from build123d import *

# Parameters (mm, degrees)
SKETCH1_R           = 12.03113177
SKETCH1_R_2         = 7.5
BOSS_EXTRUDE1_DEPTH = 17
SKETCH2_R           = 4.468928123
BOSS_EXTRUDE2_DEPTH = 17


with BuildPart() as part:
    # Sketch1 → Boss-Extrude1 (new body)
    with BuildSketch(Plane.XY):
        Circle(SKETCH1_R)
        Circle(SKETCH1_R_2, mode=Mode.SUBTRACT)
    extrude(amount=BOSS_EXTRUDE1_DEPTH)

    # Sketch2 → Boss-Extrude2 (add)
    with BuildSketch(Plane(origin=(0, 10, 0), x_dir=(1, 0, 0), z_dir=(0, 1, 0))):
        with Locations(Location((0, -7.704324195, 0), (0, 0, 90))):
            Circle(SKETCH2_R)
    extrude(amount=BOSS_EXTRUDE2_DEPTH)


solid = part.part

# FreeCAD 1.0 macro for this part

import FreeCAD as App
import Part
import Sketcher

V = App.Vector
Q = App.Units.Quantity

doc = App.newDocument("Part")
body = doc.addObject("PartDesign::Body", "Body")

# Sketch on XY plane
sketch1 = doc.addObject("Sketcher::SketchObject", "Sketch")
body.addObject(sketch1)
sketch1.AttachmentSupport = (doc.XY_Plane, [""])
sketch1.MapMode = "FlatFace"
sketch1.addGeometry([
    Part.Circle(V(0, 0, 0), V(0, 0, 1), 12),
    Part.Circle(V(0, 0, 0), V(0, 0, 1), 8),
], False)
sketch1.addConstraint([
    Sketcher.Constraint("Coincident", 0, 3, -1, 1),
    Sketcher.Constraint("Coincident", 1, 3, -1, 1),
    Sketcher.Constraint("Diameter", 1, Q("15 mm")),
    Sketcher.Constraint("Diameter", 0, Q("24.062264 mm")),
])
pad1 = doc.addObject("PartDesign::Pad", "Pad")
body.addObject(pad1)
pad1.Profile = sketch1
pad1.Length = 17

# Sketch on XZ plane
sketch2 = doc.addObject("Sketcher::SketchObject", "Sketch001")
body.addObject(sketch2)
sketch2.AttachmentSupport = (doc.XZ_Plane, [""])
sketch2.MapMode = "FlatFace"
sketch2.AttachmentOffset = App.Placement(V(0, 0, -10), App.Rotation())
sketch2.addGeometry(Part.Circle(V(0, 7.7, 0), V(0, 0, 1), 4.5), False)
sketch2.addConstraint([
    Sketcher.Constraint("PointOnObject", 0, 3, -2),
    Sketcher.Constraint("Diameter", 0, Q("8.937856 mm")),
    Sketcher.Constraint("DistanceY", -1, 1, 0, 3, Q("7.704324 mm")),
])
pad2 = doc.addObject("PartDesign::Pad", "Pad001")
body.addObject(pad2)
pad2.Profile = sketch2
pad2.Length = 17
pad2.Reversed = True

doc.recompute()
